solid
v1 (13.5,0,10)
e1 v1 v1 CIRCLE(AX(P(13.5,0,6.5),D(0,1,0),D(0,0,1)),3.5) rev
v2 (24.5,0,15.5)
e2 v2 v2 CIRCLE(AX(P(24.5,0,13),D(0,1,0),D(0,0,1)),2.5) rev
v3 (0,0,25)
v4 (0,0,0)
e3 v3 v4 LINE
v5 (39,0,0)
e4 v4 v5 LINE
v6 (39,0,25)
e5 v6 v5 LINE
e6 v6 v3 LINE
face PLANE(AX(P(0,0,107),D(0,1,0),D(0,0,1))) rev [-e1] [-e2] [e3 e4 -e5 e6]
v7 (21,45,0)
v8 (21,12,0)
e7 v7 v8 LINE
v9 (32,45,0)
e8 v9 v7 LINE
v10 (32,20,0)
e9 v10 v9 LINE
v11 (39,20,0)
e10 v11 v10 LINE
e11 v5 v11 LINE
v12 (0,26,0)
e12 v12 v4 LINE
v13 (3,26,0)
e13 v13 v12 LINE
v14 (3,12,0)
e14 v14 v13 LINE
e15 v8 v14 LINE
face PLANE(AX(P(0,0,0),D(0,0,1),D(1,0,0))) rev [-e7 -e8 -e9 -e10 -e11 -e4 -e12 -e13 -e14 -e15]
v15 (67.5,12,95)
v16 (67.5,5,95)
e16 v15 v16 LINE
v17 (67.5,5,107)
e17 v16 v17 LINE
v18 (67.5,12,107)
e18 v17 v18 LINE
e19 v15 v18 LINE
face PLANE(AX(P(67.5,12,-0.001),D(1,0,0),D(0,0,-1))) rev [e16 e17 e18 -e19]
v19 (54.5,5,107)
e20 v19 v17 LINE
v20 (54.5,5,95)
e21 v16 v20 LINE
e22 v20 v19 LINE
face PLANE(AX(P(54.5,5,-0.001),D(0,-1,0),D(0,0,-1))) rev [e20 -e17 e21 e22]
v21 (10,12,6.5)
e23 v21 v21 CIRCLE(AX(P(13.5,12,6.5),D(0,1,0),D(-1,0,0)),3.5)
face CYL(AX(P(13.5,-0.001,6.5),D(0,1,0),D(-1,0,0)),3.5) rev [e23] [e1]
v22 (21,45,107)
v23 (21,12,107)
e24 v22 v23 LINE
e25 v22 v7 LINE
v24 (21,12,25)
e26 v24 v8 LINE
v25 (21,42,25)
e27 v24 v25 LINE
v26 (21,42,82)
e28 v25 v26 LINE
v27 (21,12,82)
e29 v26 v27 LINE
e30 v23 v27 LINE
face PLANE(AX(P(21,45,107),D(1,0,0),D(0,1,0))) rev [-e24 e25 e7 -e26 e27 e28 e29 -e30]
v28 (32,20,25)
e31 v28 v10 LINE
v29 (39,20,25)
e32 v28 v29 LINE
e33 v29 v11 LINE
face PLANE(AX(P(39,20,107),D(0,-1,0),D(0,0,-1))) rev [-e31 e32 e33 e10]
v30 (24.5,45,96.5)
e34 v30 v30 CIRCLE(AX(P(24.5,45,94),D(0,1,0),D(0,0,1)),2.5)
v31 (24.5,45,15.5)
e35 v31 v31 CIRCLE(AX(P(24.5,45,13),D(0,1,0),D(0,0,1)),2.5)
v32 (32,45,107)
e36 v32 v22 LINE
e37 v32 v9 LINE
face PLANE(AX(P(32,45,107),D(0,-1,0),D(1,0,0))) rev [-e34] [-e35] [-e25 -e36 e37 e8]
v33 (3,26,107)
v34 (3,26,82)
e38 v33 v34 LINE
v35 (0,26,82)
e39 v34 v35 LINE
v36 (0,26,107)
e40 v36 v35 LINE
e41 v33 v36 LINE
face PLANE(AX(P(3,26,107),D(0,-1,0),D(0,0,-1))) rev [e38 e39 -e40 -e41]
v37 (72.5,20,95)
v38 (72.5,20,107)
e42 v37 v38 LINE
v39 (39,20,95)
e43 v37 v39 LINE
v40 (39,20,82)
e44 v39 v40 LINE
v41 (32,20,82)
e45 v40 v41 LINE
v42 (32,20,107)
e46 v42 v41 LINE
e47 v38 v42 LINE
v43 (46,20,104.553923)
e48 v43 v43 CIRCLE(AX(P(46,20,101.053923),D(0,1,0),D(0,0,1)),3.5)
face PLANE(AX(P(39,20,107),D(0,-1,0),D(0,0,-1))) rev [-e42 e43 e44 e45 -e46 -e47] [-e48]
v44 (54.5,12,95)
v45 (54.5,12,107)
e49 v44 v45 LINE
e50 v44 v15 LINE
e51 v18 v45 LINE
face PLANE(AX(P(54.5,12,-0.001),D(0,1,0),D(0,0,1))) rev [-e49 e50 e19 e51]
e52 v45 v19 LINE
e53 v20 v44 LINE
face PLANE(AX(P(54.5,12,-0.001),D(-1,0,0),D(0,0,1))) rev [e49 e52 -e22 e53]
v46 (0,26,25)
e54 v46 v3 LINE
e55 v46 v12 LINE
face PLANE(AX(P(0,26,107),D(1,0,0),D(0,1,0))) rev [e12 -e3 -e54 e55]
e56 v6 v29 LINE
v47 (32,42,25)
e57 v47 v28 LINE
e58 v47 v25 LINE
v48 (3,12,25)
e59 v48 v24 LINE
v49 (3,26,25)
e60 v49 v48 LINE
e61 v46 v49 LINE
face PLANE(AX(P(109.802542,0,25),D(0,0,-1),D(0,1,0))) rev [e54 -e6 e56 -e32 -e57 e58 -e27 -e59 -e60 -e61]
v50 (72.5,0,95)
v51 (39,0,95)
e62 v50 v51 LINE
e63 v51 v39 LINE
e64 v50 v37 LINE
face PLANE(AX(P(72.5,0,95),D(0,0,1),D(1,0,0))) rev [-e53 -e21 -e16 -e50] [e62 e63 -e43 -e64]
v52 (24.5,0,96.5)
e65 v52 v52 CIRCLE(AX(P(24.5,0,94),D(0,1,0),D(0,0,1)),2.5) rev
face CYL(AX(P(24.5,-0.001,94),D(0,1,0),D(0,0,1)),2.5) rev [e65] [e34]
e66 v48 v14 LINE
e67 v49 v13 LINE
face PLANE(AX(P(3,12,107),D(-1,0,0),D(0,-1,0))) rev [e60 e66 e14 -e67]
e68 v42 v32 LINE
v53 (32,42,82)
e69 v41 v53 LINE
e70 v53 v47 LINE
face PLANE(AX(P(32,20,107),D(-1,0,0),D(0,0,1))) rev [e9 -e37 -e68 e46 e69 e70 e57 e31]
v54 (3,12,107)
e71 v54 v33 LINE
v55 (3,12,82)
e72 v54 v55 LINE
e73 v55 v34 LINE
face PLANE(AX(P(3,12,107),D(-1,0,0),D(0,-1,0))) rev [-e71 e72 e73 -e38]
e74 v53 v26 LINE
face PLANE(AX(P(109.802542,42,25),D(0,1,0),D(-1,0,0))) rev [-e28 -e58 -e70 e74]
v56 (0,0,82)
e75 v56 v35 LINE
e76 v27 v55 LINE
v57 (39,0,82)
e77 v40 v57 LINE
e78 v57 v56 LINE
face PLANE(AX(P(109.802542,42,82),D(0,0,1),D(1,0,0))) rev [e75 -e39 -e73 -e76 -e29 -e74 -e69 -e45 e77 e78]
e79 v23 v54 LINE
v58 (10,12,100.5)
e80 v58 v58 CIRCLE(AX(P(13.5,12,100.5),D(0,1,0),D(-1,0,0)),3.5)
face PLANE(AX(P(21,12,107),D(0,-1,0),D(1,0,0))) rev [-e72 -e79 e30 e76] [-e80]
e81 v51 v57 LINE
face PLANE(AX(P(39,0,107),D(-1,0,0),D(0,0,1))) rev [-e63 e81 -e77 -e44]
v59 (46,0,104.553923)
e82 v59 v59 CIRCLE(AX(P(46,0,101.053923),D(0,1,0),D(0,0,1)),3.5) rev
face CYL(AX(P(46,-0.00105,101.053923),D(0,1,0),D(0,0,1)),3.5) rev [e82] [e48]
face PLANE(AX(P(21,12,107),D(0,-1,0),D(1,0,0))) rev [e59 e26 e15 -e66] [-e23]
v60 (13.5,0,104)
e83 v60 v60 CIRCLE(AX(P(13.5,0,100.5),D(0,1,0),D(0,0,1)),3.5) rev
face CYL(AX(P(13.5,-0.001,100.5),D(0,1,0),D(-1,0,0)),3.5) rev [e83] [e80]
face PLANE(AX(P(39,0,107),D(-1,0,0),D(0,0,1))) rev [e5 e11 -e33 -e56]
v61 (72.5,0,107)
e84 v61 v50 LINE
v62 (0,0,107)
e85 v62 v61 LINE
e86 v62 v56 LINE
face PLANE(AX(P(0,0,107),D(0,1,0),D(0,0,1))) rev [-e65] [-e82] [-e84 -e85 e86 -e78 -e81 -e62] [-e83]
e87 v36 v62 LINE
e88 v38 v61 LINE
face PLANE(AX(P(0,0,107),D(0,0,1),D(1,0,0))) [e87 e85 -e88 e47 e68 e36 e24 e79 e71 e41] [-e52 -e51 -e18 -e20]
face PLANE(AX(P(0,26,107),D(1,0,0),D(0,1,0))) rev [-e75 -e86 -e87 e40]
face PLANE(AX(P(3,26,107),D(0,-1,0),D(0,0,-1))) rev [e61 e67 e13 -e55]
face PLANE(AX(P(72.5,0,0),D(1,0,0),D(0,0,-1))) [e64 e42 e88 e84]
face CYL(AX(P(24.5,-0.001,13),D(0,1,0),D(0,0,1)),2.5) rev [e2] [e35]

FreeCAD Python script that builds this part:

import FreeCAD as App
import Part
import Sketcher
Q = App.Units.Quantity


def add_polygon(sketch, points):
    """Adds a closed chain of lines whose ends are joined by coincident constraints."""
    first, n = sketch.GeometryCount, len(points)
    for a, b in zip(points, points[1:] + points[:1]):
        sketch.addGeometry(Part.LineSegment(App.Vector(*a, 0), App.Vector(*b, 0)), False)
    for i in range(n):
        sketch.addConstraint(Sketcher.Constraint("Coincident", first + i, 2, first + (i + 1) % n, 1))

doc = App.newDocument("Part")
params = doc.addObject("Spreadsheet::Sheet", "Params")
for row, (alias, value) in enumerate([
    ("sketch1_width", "39 mm"),
    ("sketch1_width2", "7 mm"),
    ("sketch1_width3", "11 mm"),
    ("sketch1_width4", "18 mm"),
    ("sketch1_height", "20 mm"),
    ("pad1_length", "107 mm"),
    ("sketch2_width", "42 mm"),
    ("sketch2_height", "57 mm"),
    ("pocket1_length", "39 mm"),
    ("sketch3_diameter", "5 mm"),
    ("sketch4_diameter", "5 mm"),
    ("sketch5_diameter", "7 mm"),
    ("sketch6_diameter", "7 mm"),
    ("sketch7_width", "20 mm"),
    ("sketch7_height", "12 mm"),
    ("pad2_length", "33.5 mm"),
    ("sketch8_diameter", "7 mm"),
    ("sketch9_width", "13 mm"),
    ("sketch9_height", "7 mm"),
], start=1):
    params.set(f"A{row}", alias)
    params.set(f"B{row}", "=" + value)
    params.setAlias(f"B{row}", alias)

body = doc.addObject("PartDesign::Body", "Body")

# Sketch on XY plane
sketch1 = doc.addObject("Sketcher::SketchObject", "Sketch")
body.addObject(sketch1)
sketch1.AttachmentSupport = (doc.XY_Plane, [""])
sketch1.MapMode = "FlatFace"
add_polygon(sketch1, [(0, 0), (39, 0), (39, 20), (32, 20), (32, 45), (21, 45), (21, 12), (3, 12), (3, 26), (0, 26)])  # lines 0-9
sketch1.addConstraint([
    Sketcher.Constraint("Horizontal", 0),
    Sketcher.Constraint("Vertical", 1),
    Sketcher.Constraint("Horizontal", 2),
    Sketcher.Constraint("Vertical", 3),
    Sketcher.Constraint("Horizontal", 4),
    Sketcher.Constraint("Vertical", 5),
    Sketcher.Constraint("Horizontal", 6),
    Sketcher.Constraint("Vertical", 7),
    Sketcher.Constraint("Horizontal", 8),
    Sketcher.Constraint("Vertical", 9),
    Sketcher.Constraint("Coincident", 9, 2, -1, 1),
    Sketcher.Constraint("DistanceX", 0, 1, 0, 2, Q("39 mm")),
    Sketcher.Constraint("DistanceX", 2, 2, 2, 1, Q("7 mm")),
    Sketcher.Constraint("DistanceX", 4, 2, 4, 1, Q("11 mm")),
    Sketcher.Constraint("DistanceX", 6, 2, 6, 1, Q("18 mm")),
    Sketcher.Constraint("DistanceY", 1, 1, 1, 2, Q("20 mm")),
    Sketcher.Constraint("DistanceY", 3, 1, 3, 2, Q("25 mm")),
    Sketcher.Constraint("DistanceY", 5, 2, 5, 1, Q("33 mm")),
    Sketcher.Constraint("DistanceY", 7, 1, 7, 2, Q("14 mm")),
])
sketch1.setExpression("Constraints[21]", "Params.sketch1_width")
sketch1.setExpression("Constraints[22]", "Params.sketch1_width2")
sketch1.setExpression("Constraints[23]", "Params.sketch1_width3")
sketch1.setExpression("Constraints[24]", "Params.sketch1_width4")
sketch1.setExpression("Constraints[25]", "Params.sketch1_height")
pad1 = doc.addObject("PartDesign::Pad", "Pad")
body.addObject(pad1)
pad1.Profile = sketch1
pad1.setExpression("Length", "Params.pad1_length")

# Sketch on YZ plane
sketch2 = doc.addObject("Sketcher::SketchObject", "Sketch001")
body.addObject(sketch2)
sketch2.AttachmentSupport = (doc.YZ_Plane, [""])
sketch2.MapMode = "FlatFace"
add_polygon(sketch2, [(42, 25), (0, 25), (0, 82), (42, 82)])  # lines 0-3
sketch2.addConstraint([
    Sketcher.Constraint("Horizontal", 0),
    Sketcher.Constraint("Vertical", 1),
    Sketcher.Constraint("Horizontal", 2),
    Sketcher.Constraint("Vertical", 3),
    Sketcher.Constraint("PointOnObject", 0, 2, -2),
    Sketcher.Constraint("DistanceX", 0, 2, 0, 1, Q("42 mm")),
    Sketcher.Constraint("DistanceY", 1, 1, 1, 2, Q("57 mm")),
    Sketcher.Constraint("DistanceY", -1, 1, 0, 2, Q("25 mm")),
])
sketch2.setExpression("Constraints[9]", "Params.sketch2_width")
sketch2.setExpression("Constraints[10]", "Params.sketch2_height")
pocket1 = doc.addObject("PartDesign::Pocket", "Pocket")
body.addObject(pocket1)
pocket1.Profile = sketch2
pocket1.setExpression("Length", "Params.pocket1_length")
pocket1.Reversed = True

# Sketch on XZ plane
sketch3 = doc.addObject("Sketcher::SketchObject", "Sketch002")
body.addObject(sketch3)
sketch3.AttachmentSupport = (doc.XZ_Plane, [""])
sketch3.MapMode = "FlatFace"
sketch3.AttachmentOffset = App.Placement(App.Vector(0, 0, -45), App.Rotation())
sketch3.addGeometry(Part.Circle(App.Vector(24.5, 94, 0), App.Vector(0, 0, 1), 2.5), False)
sketch3.addConstraint([
    Sketcher.Constraint("Diameter", 0, Q("5 mm")),
    Sketcher.Constraint("DistanceY", -1, 1, 0, 3, Q("94 mm")),
    Sketcher.Constraint("DistanceX", -1, 1, 0, 3, Q("24.5 mm")),
])
sketch3.setExpression("Constraints[0]", "Params.sketch3_diameter")
pocket2 = doc.addObject("PartDesign::Pocket", "Pocket001")
body.addObject(pocket2)
pocket2.Profile = sketch3
pocket2.Type = "UpToFirst"
pocket2.Reversed = True

# Sketch on XZ plane
sketch4 = doc.addObject("Sketcher::SketchObject", "Sketch003")
body.addObject(sketch4)
sketch4.AttachmentSupport = (doc.XZ_Plane, [""])
sketch4.MapMode = "FlatFace"
sketch4.AttachmentOffset = App.Placement(App.Vector(0, 0, -45), App.Rotation())
sketch4.addGeometry(Part.Circle(App.Vector(24.5, 13, 0), App.Vector(0, 0, 1), 2.5), False)
sketch4.addConstraint([
    Sketcher.Constraint("Diameter", 0, Q("5 mm")),
    Sketcher.Constraint("DistanceY", -1, 1, 0, 3, Q("13 mm")),
    Sketcher.Constraint("DistanceX", -1, 1, 0, 3, Q("24.5 mm")),
])
sketch4.setExpression("Constraints[0]", "Params.sketch4_diameter")
pocket3 = doc.addObject("PartDesign::Pocket", "Pocket002")
body.addObject(pocket3)
pocket3.Profile = sketch4
pocket3.Type = "UpToFirst"
pocket3.Reversed = True

# Sketch on XZ plane
sketch5 = doc.addObject("Sketcher::SketchObject", "Sketch004")
body.addObject(sketch5)
sketch5.AttachmentSupport = (doc.XZ_Plane, [""])
sketch5.MapMode = "FlatFace"
sketch5.AttachmentOffset = App.Placement(App.Vector(0, 0, -12), App.Rotation())
sketch5.addGeometry(Part.Circle(App.Vector(13.5, 100.5, 0), App.Vector(0, 0, 1), 3.5), False)
sketch5.addConstraint([
    Sketcher.Constraint("Diameter", 0, Q("7 mm")),
    Sketcher.Constraint("DistanceX", -1, 1, 0, 3, Q("13.5 mm")),
    Sketcher.Constraint("DistanceY", -1, 1, 0, 3, Q("100.5 mm")),
])
sketch5.setExpression("Constraints[0]", "Params.sketch5_diameter")
pocket4 = doc.addObject("PartDesign::Pocket", "Pocket003")
body.addObject(pocket4)
pocket4.Profile = sketch5
pocket4.Type = "UpToFirst"
pocket4.Reversed = True

# Sketch on XZ plane
sketch6 = doc.addObject("Sketcher::SketchObject", "Sketch005")
body.addObject(sketch6)
sketch6.AttachmentSupport = (doc.XZ_Plane, [""])
sketch6.MapMode = "FlatFace"
sketch6.AttachmentOffset = App.Placement(App.Vector(0, 0, -12), App.Rotation())
sketch6.addGeometry(Part.Circle(App.Vector(13.5, 6.5, 0), App.Vector(0, 0, 1), 3.5), False)
sketch6.addConstraint([
    Sketcher.Constraint("Diameter", 0, Q("7 mm")),
    Sketcher.Constraint("DistanceX", -1, 1, 0, 3, Q("13.5 mm")),
    Sketcher.Constraint("DistanceY", -1, 1, 0, 3, Q("6.5 mm")),
])
sketch6.setExpression("Constraints[0]", "Params.sketch6_diameter")
pocket5 = doc.addObject("PartDesign::Pocket", "Pocket004")
body.addObject(pocket5)
pocket5.Profile = sketch6
pocket5.Type = "UpToFirst"
pocket5.Reversed = True

# Sketch on YZ plane
sketch7 = doc.addObject("Sketcher::SketchObject", "Sketch006")
body.addObject(sketch7)
sketch7.AttachmentSupport = (doc.YZ_Plane, [""])
sketch7.MapMode = "FlatFace"
sketch7.AttachmentOffset = App.Placement(App.Vector(0, 0, 39), App.Rotation())
add_polygon(sketch7, [(20, 107), (0, 107), (0, 95), (20, 95)])  # lines 0-3
sketch7.addConstraint([
    Sketcher.Constraint("Horizontal", 0),
    Sketcher.Constraint("Vertical", 1),
    Sketcher.Constraint("Horizontal", 2),
    Sketcher.Constraint("Vertical", 3),
    Sketcher.Constraint("PointOnObject", 0, 2, -2),
    Sketcher.Constraint("DistanceX", 0, 2, 0, 1, Q("20 mm")),
    Sketcher.Constraint("DistanceY", 1, 2, 1, 1, Q("12 mm")),
    Sketcher.Constraint("DistanceY", -1, 1, 0, 2, Q("107 mm")),
])
sketch7.setExpression("Constraints[9]", "Params.sketch7_width")
sketch7.setExpression("Constraints[10]", "Params.sketch7_height")
pad2 = doc.addObject("PartDesign::Pad", "Pad001")
body.addObject(pad2)
pad2.Profile = sketch7
pad2.setExpression("Length", "Params.pad2_length")

# Sketch on XZ plane
sketch8 = doc.addObject("Sketcher::SketchObject", "Sketch007")
body.addObject(sketch8)
sketch8.AttachmentSupport = (doc.XZ_Plane, [""])
sketch8.MapMode = "FlatFace"
sketch8.AttachmentOffset = App.Placement(App.Vector(0, 0, -20), App.Rotation())
sketch8.addGeometry(Part.Circle(App.Vector(46, 101.1, 0), App.Vector(0, 0, 1), 3.5), False)
sketch8.addConstraint([
    Sketcher.Constraint("Diameter", 0, Q("7 mm")),
    Sketcher.Constraint("DistanceX", -1, 1, 0, 3, Q("46 mm")),
    Sketcher.Constraint("DistanceY", -1, 1, 0, 3, Q("101.053923 mm")),
])
sketch8.setExpression("Constraints[0]", "Params.sketch8_diameter")
pocket6 = doc.addObject("PartDesign::Pocket", "Pocket005")
body.addObject(pocket6)
pocket6.Profile = sketch8
pocket6.Type = "UpToFirst"
pocket6.Reversed = True

# Sketch on XY plane
sketch9 = doc.addObject("Sketcher::SketchObject", "Sketch008")
body.addObject(sketch9)
sketch9.AttachmentSupport = (doc.XY_Plane, [""])
sketch9.MapMode = "FlatFace"
sketch9.AttachmentOffset = App.Placement(App.Vector(0, 0, 107), App.Rotation())
add_polygon(sketch9, [(54, 12), (54, 5), (68, 5), (68, 12)])  # lines 0-3
sketch9.addConstraint([
    Sketcher.Constraint("Vertical", 0),
    Sketcher.Constraint("Horizontal", 1),
    Sketcher.Constraint("Vertical", 2),
    Sketcher.Constraint("Horizontal", 3),
    Sketcher.Constraint("DistanceX", 1, 1, 1, 2, Q("13 mm")),
    Sketcher.Constraint("DistanceY", 0, 2, 0, 1, Q("7 mm")),
    Sketcher.Constraint("DistanceY", -1, 1, 0, 2, Q("5 mm")),
    Sketcher.Constraint("DistanceX", -1, 1, 0, 2, Q("54.5 mm")),
])
sketch9.setExpression("Constraints[8]", "Params.sketch9_width")
sketch9.setExpression("Constraints[9]", "Params.sketch9_height")
pocket7 = doc.addObject("PartDesign::Pocket", "Pocket006")
body.addObject(pocket7)
pocket7.Profile = sketch9
pocket7.Type = "UpToFirst"

doc.recompute()
